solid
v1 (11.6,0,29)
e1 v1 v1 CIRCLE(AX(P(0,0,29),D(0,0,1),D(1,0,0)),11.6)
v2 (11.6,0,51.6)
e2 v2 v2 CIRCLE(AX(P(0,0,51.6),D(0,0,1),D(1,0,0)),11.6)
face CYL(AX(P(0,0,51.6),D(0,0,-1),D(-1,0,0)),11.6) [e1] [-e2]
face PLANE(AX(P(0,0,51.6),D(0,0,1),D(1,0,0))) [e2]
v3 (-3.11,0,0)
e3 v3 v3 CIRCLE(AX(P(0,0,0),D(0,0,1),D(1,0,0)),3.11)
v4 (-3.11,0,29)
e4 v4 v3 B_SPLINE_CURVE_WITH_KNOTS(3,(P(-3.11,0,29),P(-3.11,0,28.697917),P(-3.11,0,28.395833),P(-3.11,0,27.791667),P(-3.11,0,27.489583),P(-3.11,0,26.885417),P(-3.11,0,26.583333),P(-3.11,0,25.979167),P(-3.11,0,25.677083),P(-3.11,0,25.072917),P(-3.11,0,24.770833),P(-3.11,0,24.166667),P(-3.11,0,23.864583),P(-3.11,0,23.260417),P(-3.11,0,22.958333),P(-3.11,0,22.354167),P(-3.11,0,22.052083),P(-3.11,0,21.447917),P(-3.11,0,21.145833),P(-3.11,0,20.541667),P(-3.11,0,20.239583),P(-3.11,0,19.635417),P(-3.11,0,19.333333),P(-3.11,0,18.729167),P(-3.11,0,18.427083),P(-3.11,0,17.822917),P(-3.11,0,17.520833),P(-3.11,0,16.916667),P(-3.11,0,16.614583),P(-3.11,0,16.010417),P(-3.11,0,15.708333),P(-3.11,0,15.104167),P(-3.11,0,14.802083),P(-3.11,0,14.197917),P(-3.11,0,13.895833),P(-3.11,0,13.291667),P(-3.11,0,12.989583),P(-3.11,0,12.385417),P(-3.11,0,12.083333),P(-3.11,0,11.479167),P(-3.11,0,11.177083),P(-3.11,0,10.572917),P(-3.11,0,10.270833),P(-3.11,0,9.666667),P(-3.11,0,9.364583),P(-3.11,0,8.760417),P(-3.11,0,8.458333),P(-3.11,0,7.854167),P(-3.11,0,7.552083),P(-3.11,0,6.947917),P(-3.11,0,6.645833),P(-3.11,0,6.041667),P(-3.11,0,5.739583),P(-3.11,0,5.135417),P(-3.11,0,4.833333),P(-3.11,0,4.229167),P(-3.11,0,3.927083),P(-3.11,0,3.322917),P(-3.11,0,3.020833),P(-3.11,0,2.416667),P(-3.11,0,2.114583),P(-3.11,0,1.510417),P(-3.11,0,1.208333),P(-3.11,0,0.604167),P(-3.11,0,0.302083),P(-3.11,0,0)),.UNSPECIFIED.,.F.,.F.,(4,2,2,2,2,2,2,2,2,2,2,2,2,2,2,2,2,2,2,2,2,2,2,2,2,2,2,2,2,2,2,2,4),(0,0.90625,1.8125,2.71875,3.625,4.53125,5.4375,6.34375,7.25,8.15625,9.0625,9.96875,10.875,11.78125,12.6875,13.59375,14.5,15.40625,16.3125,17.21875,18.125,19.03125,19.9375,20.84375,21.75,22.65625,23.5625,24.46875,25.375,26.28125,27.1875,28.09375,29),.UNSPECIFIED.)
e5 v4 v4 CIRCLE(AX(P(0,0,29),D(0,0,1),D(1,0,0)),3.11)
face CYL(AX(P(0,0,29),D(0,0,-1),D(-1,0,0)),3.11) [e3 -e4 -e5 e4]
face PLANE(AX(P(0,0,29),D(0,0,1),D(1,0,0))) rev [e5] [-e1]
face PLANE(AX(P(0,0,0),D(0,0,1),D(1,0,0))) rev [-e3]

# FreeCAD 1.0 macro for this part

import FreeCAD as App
import Part
import Sketcher

V = App.Vector
Q = App.Units.Quantity

doc = App.newDocument("Part")
body = doc.addObject("PartDesign::Body", "Body")

sketch1 = body.newObject("Sketcher::SketchObject", "Sketch")
sketch1.AttachmentSupport = (doc.getObject("XY_Plane"), [""])
sketch1.MapMode = "FlatFace"
sketch1.addGeometry(Part.Circle(V(0, 0, 0), V(0, 0, 1), 3.1), False)
sketch1.addConstraint(Sketcher.Constraint("Coincident", 0, 3, -1, 1))
sketch1.addConstraint(Sketcher.Constraint("Diameter", 0, Q("6.22 mm")))
pad1 = body.newObject("PartDesign::Pad", "Pad")
pad1.Profile = sketch1
pad1.Length = 29

sketch2 = body.newObject("Sketcher::SketchObject", "Sketch001")
sketch2.AttachmentSupport = (doc.getObject("XY_Plane"), [""])
sketch2.MapMode = "FlatFace"
sketch2.AttachmentOffset = App.Placement(V(0, 0, 29), App.Rotation())
sketch2.addGeometry(Part.Circle(V(0, 0, 0), V(0, 0, 1), 12), False)
sketch2.addConstraint(Sketcher.Constraint("Coincident", 0, 3, -1, 1))
sketch2.addConstraint(Sketcher.Constraint("Diameter", 0, Q("23.2 mm")))
pad2 = body.newObject("PartDesign::Pad", "Pad001")
pad2.Profile = sketch2
pad2.Length = 22.6

doc.recompute()
